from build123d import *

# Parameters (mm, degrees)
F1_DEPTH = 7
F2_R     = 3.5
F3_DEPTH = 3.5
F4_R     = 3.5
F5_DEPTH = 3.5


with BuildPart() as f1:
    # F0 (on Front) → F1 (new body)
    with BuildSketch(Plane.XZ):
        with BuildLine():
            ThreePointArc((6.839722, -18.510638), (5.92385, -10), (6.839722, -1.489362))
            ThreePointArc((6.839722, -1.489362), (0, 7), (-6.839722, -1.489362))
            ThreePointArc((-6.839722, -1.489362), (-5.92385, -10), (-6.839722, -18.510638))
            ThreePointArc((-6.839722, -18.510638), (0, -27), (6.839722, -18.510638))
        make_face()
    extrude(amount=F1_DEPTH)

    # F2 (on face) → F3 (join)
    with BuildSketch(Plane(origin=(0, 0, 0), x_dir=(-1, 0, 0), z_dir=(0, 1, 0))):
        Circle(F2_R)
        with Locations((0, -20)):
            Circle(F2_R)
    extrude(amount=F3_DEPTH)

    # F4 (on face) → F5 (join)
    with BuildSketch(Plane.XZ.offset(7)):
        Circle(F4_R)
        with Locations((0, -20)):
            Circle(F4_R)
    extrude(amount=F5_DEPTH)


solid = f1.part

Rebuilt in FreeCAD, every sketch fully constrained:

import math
import FreeCAD as App
import Part
import Sketcher

V = App.Vector

doc = App.newDocument("Part")
body = doc.addObject("PartDesign::Body", "Body")

sketch1 = doc.addObject("Sketcher::SketchObject", "Sketch")
body.addObject(sketch1)
sketch1.AttachmentSupport = (doc.XZ_Plane, [""])
sketch1.MapMode = "FlatFace"
sketch1.addGeometry(Part.ArcOfCircle(Part.Circle(V(45.923861, -10, 0), V(0, 0, 1), 40.000011), math.radians(167.71551), math.radians(192.28449)), False)
sketch1.addGeometry(Part.ArcOfCircle(Part.Circle(V(0, 0, 0), V(0, 0, 1), 7), math.radians(-12.284499), math.radians(192.284499)), False)
sketch1.addGeometry(Part.ArcOfCircle(Part.Circle(V(-45.923861, -10, 0), V(0, 0, 1), 40.000011), math.radians(-12.28449), math.radians(12.28449)), False)
sketch1.addGeometry(Part.ArcOfCircle(Part.Circle(V(0, -20, 0), V(0, 0, 1), 7), math.radians(167.715501), math.radians(372.284499)), False)
sketch1.addConstraint(Sketcher.Constraint("Tangent", 0, 1, 1, 1))
sketch1.addConstraint(Sketcher.Constraint("Tangent", 1, 2, 2, 2))
sketch1.addConstraint(Sketcher.Constraint("Tangent", 2, 1, 3, 1))
sketch1.addConstraint(Sketcher.Constraint("Tangent", 3, 2, 0, 2))
sketch1.addConstraint(Sketcher.Constraint("Coincident", 1, 3, -1, 1))
sketch1.addConstraint(Sketcher.Constraint("Equal", 0, 2))
sketch1.addConstraint(Sketcher.Constraint("Equal", 1, 3))
sketch1.addConstraint(Sketcher.Constraint("PointOnObject", 3, 3, -2))
sketch1.addConstraint(Sketcher.Constraint("Radius", 1, 7.0))
sketch1.addConstraint(Sketcher.Constraint("DistanceY", 0, 3, -1, 1, 10.0))
sketch1.addConstraint(Sketcher.Constraint("Radius", 0, 40.000011))
pad1 = doc.addObject("PartDesign::Pad", "Pad")
body.addObject(pad1)
pad1.Profile = sketch1
pad1.Length = 7

sketch2 = doc.addObject("Sketcher::SketchObject", "Sketch001")
body.addObject(sketch2)
sketch2.AttachmentSupport = (doc.XZ_Plane, [""])
sketch2.MapMode = "FlatFace"
sketch2.addGeometry(Part.Circle(V(0, 0, 0), V(0, 0, 1), 3.5), False)
sketch2.addGeometry(Part.Circle(V(0, -20, 0), V(0, 0, 1), 3.5), False)
sketch2.addConstraint(Sketcher.Constraint("Coincident", 0, 3, -1, 1))
sketch2.addConstraint(Sketcher.Constraint("Equal", 0, 1))
sketch2.addConstraint(Sketcher.Constraint("PointOnObject", 1, 3, -2))
sketch2.addConstraint(Sketcher.Constraint("Diameter", 0, 7.0))
sketch2.addConstraint(Sketcher.Constraint("DistanceY", 1, 3, -1, 1, 20.0))
pad2 = doc.addObject("PartDesign::Pad", "Pad001")
body.addObject(pad2)
pad2.Profile = sketch2
pad2.Length = 3.5
pad2.Reversed = True

sketch3 = doc.addObject("Sketcher::SketchObject", "Sketch002")
body.addObject(sketch3)
sketch3.AttachmentSupport = (doc.XZ_Plane, [""])
sketch3.MapMode = "FlatFace"
sketch3.AttachmentOffset = App.Placement(V(0, 0, 7), App.Rotation())
sketch3.addGeometry(Part.Circle(V(0, 0, 0), V(0, 0, 1), 3.5), False)
sketch3.addGeometry(Part.Circle(V(0, -20, 0), V(0, 0, 1), 3.5), False)
sketch3.addConstraint(Sketcher.Constraint("Coincident", 0, 3, -1, 1))
sketch3.addConstraint(Sketcher.Constraint("Equal", 0, 1))
sketch3.addConstraint(Sketcher.Constraint("PointOnObject", 1, 3, -2))
sketch3.addConstraint(Sketcher.Constraint("Diameter", 0, 7.0))
sketch3.addConstraint(Sketcher.Constraint("DistanceY", 1, 3, -1, 1, 20.0))
pad3 = doc.addObject("PartDesign::Pad", "Pad002")
body.addObject(pad3)
pad3.Profile = sketch3
pad3.Length = 3.5

doc.recompute()
